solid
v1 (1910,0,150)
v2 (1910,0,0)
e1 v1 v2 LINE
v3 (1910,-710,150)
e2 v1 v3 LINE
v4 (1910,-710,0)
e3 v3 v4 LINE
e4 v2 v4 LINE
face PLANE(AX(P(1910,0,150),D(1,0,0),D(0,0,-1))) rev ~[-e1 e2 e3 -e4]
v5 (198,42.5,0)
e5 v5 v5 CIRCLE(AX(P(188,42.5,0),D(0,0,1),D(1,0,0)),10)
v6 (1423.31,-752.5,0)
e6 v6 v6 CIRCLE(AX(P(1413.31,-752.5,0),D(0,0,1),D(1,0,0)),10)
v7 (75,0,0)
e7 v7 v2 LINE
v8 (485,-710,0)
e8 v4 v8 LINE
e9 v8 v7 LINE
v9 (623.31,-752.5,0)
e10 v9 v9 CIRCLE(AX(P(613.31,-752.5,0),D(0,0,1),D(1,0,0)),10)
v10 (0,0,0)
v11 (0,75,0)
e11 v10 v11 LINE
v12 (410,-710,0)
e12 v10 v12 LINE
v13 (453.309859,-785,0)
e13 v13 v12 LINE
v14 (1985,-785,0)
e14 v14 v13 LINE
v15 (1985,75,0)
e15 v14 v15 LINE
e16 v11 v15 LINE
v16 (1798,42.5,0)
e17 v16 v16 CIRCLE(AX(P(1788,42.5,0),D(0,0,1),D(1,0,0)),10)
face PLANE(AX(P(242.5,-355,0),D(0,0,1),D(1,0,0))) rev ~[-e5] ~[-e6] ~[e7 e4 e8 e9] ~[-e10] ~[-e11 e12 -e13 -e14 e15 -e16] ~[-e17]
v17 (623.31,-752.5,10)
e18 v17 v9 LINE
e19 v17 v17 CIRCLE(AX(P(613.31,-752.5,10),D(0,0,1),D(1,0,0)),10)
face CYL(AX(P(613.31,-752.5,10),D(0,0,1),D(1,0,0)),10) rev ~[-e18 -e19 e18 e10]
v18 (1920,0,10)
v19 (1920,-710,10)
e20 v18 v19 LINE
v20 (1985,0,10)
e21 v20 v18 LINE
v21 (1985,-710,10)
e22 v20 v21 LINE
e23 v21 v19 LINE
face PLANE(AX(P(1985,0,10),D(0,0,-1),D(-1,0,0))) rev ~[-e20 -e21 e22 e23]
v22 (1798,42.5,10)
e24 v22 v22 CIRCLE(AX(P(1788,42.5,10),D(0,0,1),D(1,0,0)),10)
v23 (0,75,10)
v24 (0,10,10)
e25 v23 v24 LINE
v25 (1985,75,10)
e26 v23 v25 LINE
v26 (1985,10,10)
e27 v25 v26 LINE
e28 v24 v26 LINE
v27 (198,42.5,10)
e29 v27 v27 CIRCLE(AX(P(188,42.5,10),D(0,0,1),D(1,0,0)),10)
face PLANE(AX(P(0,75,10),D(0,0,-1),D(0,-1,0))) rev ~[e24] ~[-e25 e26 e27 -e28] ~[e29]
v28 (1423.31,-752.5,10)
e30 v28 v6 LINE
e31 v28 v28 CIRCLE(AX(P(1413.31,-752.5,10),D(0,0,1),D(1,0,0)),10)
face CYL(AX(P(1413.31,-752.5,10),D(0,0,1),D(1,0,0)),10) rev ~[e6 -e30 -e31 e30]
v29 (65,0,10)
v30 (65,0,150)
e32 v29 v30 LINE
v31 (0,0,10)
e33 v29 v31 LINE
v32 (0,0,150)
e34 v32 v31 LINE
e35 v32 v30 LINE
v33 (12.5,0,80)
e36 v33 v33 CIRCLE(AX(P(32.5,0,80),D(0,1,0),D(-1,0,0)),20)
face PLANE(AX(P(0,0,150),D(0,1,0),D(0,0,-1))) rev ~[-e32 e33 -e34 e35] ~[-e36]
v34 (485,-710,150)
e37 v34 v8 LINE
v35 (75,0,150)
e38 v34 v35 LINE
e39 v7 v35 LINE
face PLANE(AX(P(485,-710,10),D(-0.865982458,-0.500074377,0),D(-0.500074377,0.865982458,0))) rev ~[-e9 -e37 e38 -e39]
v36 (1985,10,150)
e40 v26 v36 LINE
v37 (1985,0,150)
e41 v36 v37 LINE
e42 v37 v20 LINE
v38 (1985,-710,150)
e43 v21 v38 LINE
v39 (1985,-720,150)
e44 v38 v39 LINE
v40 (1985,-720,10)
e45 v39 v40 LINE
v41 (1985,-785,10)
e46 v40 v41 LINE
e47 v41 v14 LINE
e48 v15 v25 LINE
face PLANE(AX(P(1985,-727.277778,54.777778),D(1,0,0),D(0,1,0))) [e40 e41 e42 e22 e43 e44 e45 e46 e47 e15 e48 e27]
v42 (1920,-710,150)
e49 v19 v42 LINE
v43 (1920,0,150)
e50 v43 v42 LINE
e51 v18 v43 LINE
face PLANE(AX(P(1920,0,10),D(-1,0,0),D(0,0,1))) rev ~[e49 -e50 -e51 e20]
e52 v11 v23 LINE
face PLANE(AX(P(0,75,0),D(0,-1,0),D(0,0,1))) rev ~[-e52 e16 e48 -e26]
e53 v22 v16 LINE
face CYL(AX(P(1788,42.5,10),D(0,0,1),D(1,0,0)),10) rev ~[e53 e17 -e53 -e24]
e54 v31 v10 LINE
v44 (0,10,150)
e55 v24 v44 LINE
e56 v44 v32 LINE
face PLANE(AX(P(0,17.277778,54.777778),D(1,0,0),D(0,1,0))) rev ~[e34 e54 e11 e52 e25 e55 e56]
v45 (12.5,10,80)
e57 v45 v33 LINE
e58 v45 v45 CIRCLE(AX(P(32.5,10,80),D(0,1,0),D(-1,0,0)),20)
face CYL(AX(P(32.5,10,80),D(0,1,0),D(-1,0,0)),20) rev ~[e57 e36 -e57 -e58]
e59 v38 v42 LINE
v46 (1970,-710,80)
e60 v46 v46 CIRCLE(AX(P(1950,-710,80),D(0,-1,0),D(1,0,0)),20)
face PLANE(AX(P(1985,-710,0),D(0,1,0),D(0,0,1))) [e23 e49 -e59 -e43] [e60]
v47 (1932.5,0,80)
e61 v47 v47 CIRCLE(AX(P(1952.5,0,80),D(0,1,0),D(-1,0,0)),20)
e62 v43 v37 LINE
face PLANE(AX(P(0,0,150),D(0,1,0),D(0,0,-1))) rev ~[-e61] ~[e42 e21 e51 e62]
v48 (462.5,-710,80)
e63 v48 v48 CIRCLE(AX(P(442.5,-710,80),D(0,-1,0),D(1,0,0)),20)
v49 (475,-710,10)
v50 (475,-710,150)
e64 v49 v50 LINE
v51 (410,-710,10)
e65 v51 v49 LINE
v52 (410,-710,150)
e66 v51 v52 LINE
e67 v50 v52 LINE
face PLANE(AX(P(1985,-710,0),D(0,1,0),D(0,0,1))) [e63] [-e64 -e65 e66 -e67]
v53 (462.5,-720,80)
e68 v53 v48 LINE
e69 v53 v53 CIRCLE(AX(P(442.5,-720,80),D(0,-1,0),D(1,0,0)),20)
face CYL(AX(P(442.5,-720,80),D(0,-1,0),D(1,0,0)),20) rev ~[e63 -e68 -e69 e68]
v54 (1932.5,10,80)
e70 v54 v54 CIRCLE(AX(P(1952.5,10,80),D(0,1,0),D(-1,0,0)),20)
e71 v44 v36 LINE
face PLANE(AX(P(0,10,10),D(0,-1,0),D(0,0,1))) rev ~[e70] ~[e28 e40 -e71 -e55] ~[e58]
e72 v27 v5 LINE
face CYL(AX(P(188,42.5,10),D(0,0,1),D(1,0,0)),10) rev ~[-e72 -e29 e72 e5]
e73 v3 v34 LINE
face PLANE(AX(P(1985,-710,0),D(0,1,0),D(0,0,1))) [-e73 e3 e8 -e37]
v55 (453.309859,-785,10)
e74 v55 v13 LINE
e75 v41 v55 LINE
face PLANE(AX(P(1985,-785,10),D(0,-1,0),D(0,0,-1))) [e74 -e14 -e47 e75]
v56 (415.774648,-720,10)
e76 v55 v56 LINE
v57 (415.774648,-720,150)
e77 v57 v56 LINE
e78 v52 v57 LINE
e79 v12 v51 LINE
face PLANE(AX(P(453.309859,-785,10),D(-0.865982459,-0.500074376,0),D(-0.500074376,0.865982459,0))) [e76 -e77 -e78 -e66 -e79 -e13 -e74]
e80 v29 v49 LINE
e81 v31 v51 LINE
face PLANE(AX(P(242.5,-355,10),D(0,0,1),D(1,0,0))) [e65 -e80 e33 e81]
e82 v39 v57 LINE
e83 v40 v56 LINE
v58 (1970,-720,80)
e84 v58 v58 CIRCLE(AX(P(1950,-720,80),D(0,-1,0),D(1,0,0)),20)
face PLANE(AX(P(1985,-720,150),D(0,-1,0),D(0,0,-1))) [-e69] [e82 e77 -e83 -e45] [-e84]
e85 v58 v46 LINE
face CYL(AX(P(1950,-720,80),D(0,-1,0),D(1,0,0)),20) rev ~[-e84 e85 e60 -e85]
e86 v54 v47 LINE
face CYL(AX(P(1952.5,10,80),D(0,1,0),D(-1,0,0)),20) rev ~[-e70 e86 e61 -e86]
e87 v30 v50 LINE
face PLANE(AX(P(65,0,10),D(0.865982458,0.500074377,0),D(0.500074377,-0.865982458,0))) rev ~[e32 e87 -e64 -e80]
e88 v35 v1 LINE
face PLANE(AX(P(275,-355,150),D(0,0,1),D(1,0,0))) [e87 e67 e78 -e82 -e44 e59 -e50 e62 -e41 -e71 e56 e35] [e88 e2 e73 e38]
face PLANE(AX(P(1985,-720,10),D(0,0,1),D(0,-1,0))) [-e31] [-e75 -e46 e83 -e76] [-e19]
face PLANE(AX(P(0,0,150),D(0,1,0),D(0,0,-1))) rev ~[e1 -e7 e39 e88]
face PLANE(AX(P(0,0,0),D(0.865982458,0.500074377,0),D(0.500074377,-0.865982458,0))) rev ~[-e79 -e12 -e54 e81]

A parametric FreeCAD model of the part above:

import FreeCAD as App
import Part
import Sketcher

doc = App.newDocument("Part")
body = doc.addObject("PartDesign::Body", "Body")

# Sketch on YZ plane
sketch1 = doc.addObject("Sketcher::SketchObject", "Sketch")
body.addObject(sketch1)
sketch1.AttachmentSupport = (doc.YZ_Plane, [""])
sketch1.MapMode = "FlatFace"
sketch1.addGeometry(Part.LineSegment(App.Vector(0, 0, 0), App.Vector(75, 0, 0)), False)
sketch1.addGeometry(Part.LineSegment(App.Vector(75, 0, 0), App.Vector(75, 10, 0)), False)
sketch1.addGeometry(Part.LineSegment(App.Vector(75, 10, 0), App.Vector(10, 10, 0)), False)
sketch1.addGeometry(Part.LineSegment(App.Vector(10, 10, 0), App.Vector(10, 150, 0)), False)
sketch1.addGeometry(Part.LineSegment(App.Vector(10, 150, 0), App.Vector(0, 150, 0)), False)
sketch1.addGeometry(Part.LineSegment(App.Vector(0, 150, 0), App.Vector(0, 0, 0)), False)
sketch1.addConstraint(Sketcher.Constraint("Coincident", 0, 2, 1, 1))
sketch1.addConstraint(Sketcher.Constraint("Coincident", 1, 2, 2, 1))
sketch1.addConstraint(Sketcher.Constraint("Coincident", 2, 2, 3, 1))
sketch1.addConstraint(Sketcher.Constraint("Coincident", 3, 2, 4, 1))
sketch1.addConstraint(Sketcher.Constraint("Coincident", 4, 2, 5, 1))
sketch1.addConstraint(Sketcher.Constraint("Coincident", 5, 2, 0, 1))
sketch1.addConstraint(Sketcher.Constraint("Horizontal", 0))
sketch1.addConstraint(Sketcher.Constraint("Vertical", 1))
sketch1.addConstraint(Sketcher.Constraint("Horizontal", 2))
sketch1.addConstraint(Sketcher.Constraint("Vertical", 3))
sketch1.addConstraint(Sketcher.Constraint("Horizontal", 4))
sketch1.addConstraint(Sketcher.Constraint("Vertical", 5))
sketch1.addConstraint(Sketcher.Constraint("Coincident", 5, 2, -1, 1))
sketch1.addConstraint(Sketcher.Constraint("Equal", 4, 1))
sketch1.addConstraint(Sketcher.Constraint("DistanceX", 0, 1, 0, 2, 75.0))
sketch1.addConstraint(Sketcher.Constraint("DistanceX", 2, 2, 2, 1, 65.0))
sketch1.addConstraint(Sketcher.Constraint("DistanceY", 3, 1, 3, 2, 140.0))
pad1 = doc.addObject("PartDesign::Pad", "Pad")
body.addObject(pad1)
pad1.Profile = sketch1
pad1.Length = 1985

# Sketch on XZ plane
sketch2 = doc.addObject("Sketcher::SketchObject", "Sketch001")
body.addObject(sketch2)
sketch2.AttachmentSupport = (doc.XZ_Plane, [""])
sketch2.MapMode = "FlatFace"
sketch2.addGeometry(Part.LineSegment(App.Vector(1910, 0, 0), App.Vector(1985, 0, 0)), False)
sketch2.addGeometry(Part.LineSegment(App.Vector(1985, 0, 0), App.Vector(1985, 10, 0)), False)
sketch2.addGeometry(Part.LineSegment(App.Vector(1985, 10, 0), App.Vector(1920, 10, 0)), False)
sketch2.addGeometry(Part.LineSegment(App.Vector(1920, 10, 0), App.Vector(1920, 150, 0)), False)
sketch2.addGeometry(Part.LineSegment(App.Vector(1920, 150, 0), App.Vector(1910, 150, 0)), False)
sketch2.addGeometry(Part.LineSegment(App.Vector(1910, 150, 0), App.Vector(1910, 0, 0)), False)
sketch2.addConstraint(Sketcher.Constraint("Coincident", 0, 2, 1, 1))
sketch2.addConstraint(Sketcher.Constraint("Coincident", 1, 2, 2, 1))
sketch2.addConstraint(Sketcher.Constraint("Coincident", 2, 2, 3, 1))
sketch2.addConstraint(Sketcher.Constraint("Coincident", 3, 2, 4, 1))
sketch2.addConstraint(Sketcher.Constraint("Coincident", 4, 2, 5, 1))
sketch2.addConstraint(Sketcher.Constraint("Coincident", 5, 2, 0, 1))
sketch2.addConstraint(Sketcher.Constraint("Horizontal", 0))
sketch2.addConstraint(Sketcher.Constraint("Vertical", 1))
sketch2.addConstraint(Sketcher.Constraint("Horizontal", 2))
sketch2.addConstraint(Sketcher.Constraint("Vertical", 3))
sketch2.addConstraint(Sketcher.Constraint("Horizontal", 4))
sketch2.addConstraint(Sketcher.Constraint("Vertical", 5))
sketch2.addConstraint(Sketcher.Constraint("PointOnObject", 0, 2, -1))
sketch2.addConstraint(Sketcher.Constraint("Equal", 4, 1))
sketch2.addConstraint(Sketcher.Constraint("DistanceX", 0, 1, 0, 2, 75.0))
sketch2.addConstraint(Sketcher.Constraint("DistanceX", 2, 2, 2, 1, 65.0))
sketch2.addConstraint(Sketcher.Constraint("DistanceY", 3, 1, 3, 2, 140.0))
sketch2.addConstraint(Sketcher.Constraint("DistanceX", -1, 1, 0, 2, 1985.0))
pad2 = doc.addObject("PartDesign::Pad", "Pad001")
body.addObject(pad2)
pad2.Profile = sketch2
pad2.Length = 710
body2 = doc.addObject("PartDesign::Body", "Body001")

# Sketch on YZ plane
sketch3 = doc.addObject("Sketcher::SketchObject", "Sketch002")
body2.addObject(sketch3)
sketch3.AttachmentSupport = (doc.getObject("YZ_Plane001"), [""])
sketch3.MapMode = "FlatFace"
sketch3.AttachmentOffset = App.Placement(App.Vector(0, 0, 1985), App.Rotation())
sketch3.addGeometry(Part.LineSegment(App.Vector(-720, 150, 0), App.Vector(-720, 10, 0)), False)
sketch3.addGeometry(Part.LineSegment(App.Vector(-720, 10, 0), App.Vector(-785, 10, 0)), False)
sketch3.addGeometry(Part.LineSegment(App.Vector(-785, 10, 0), App.Vector(-785, 0, 0)), False)
sketch3.addGeometry(Part.LineSegment(App.Vector(-785, 0, 0), App.Vector(-710, 0, 0)), False)
sketch3.addGeometry(Part.LineSegment(App.Vector(-710, 0, 0), App.Vector(-710, 150, 0)), False)
sketch3.addGeometry(Part.LineSegment(App.Vector(-710, 150, 0), App.Vector(-720, 150, 0)), False)
sketch3.addConstraint(Sketcher.Constraint("Coincident", 0, 2, 1, 1))
sketch3.addConstraint(Sketcher.Constraint("Coincident", 1, 2, 2, 1))
sketch3.addConstraint(Sketcher.Constraint("Coincident", 2, 2, 3, 1))
sketch3.addConstraint(Sketcher.Constraint("Coincident", 3, 2, 4, 1))
sketch3.addConstraint(Sketcher.Constraint("Coincident", 4, 2, 5, 1))
sketch3.addConstraint(Sketcher.Constraint("Coincident", 5, 2, 0, 1))
sketch3.addConstraint(Sketcher.Constraint("Vertical", 0))
sketch3.addConstraint(Sketcher.Constraint("Horizontal", 1))
sketch3.addConstraint(Sketcher.Constraint("Vertical", 2))
sketch3.addConstraint(Sketcher.Constraint("Horizontal", 3))
sketch3.addConstraint(Sketcher.Constraint("Vertical", 4))
sketch3.addConstraint(Sketcher.Constraint("Horizontal", 5))
sketch3.addConstraint(Sketcher.Constraint("PointOnObject", 2, 2, -1))
sketch3.addConstraint(Sketcher.Constraint("Equal", 5, 2))
sketch3.addConstraint(Sketcher.Constraint("DistanceX", 1, 2, 1, 1, 65.0))
sketch3.addConstraint(Sketcher.Constraint("DistanceX", 3, 1, 3, 2, 75.0))
sketch3.addConstraint(Sketcher.Constraint("DistanceY", 0, 2, 0, 1, 140.0))
sketch3.addConstraint(Sketcher.Constraint("DistanceX", 0, 2, -1, 1, 720.0))
pad3 = doc.addObject("PartDesign::Pad", "Pad002")
body2.addObject(pad3)
pad3.Profile = sketch3
pad3.Length = 1575
pad3.Reversed = True
body3 = doc.addObject("PartDesign::Body", "Body002")

# Sketch on XY plane
sketch4 = doc.addObject("Sketcher::SketchObject", "Sketch003")
body3.addObject(sketch4)
sketch4.AttachmentSupport = (doc.getObject("XY_Plane002"), [""])
sketch4.MapMode = "FlatFace"
sketch4.addGeometry(Part.LineSegment(App.Vector(485, -710, 0), App.Vector(75, 0, 0)), False)
sketch4.addGeometry(Part.LineSegment(App.Vector(75, 0, 0), App.Vector(0, 0, 0)), False)
sketch4.addGeometry(Part.LineSegment(App.Vector(0, 0, 0), App.Vector(410, -710, 0)), False)
sketch4.addGeometry(Part.LineSegment(App.Vector(410, -710, 0), App.Vector(485, -710, 0)), False)
sketch4.addConstraint(Sketcher.Constraint("Coincident", 0, 2, 1, 1))
sketch4.addConstraint(Sketcher.Constraint("Coincident", 1, 2, 2, 1))
sketch4.addConstraint(Sketcher.Constraint("Coincident", 2, 2, 3, 1))
sketch4.addConstraint(Sketcher.Constraint("Coincident", 3, 2, 0, 1))
sketch4.addConstraint(Sketcher.Constraint("Horizontal", 1))
sketch4.addConstraint(Sketcher.Constraint("Horizontal", 3))
sketch4.addConstraint(Sketcher.Constraint("Coincident", 1, 2, -1, 1))
sketch4.addConstraint(Sketcher.Constraint("Parallel", 0, 2))
sketch4.addConstraint(Sketcher.Constraint("DistanceX", 1, 2, 1, 1, 75.0))
sketch4.addConstraint(Sketcher.Constraint("DistanceX", -1, 1, 2, 2, 410.0))
sketch4.addConstraint(Sketcher.Constraint("DistanceY", 2, 2, -1, 1, 710.0))
pad4 = doc.addObject("PartDesign::Pad", "Pad003")
body3.addObject(pad4)
pad4.Profile = sketch4
pad4.Length = 10
doc.recompute()

boolean = doc.addObject("PartDesign::Boolean", "Boolean")
body.addObject(boolean)
boolean.Type = "Fuse"
boolean.addObjects([body2])
doc.recompute()

boolean2 = doc.addObject("PartDesign::Boolean", "Boolean001")
body.addObject(boolean2)
boolean2.Type = "Fuse"
boolean2.addObjects([body3])

# Sketch on XY plane
sketch5 = doc.addObject("Sketcher::SketchObject", "Sketch004")
body.addObject(sketch5)
sketch5.AttachmentSupport = (doc.XY_Plane, [""])
sketch5.MapMode = "FlatFace"
sketch5.AttachmentOffset = App.Placement(App.Vector(0, 0, 10), App.Rotation())
sketch5.addGeometry(Part.LineSegment(App.Vector(485, -710, 0), App.Vector(75, 0, 0)), False)
sketch5.addGeometry(Part.LineSegment(App.Vector(75, 0, 0), App.Vector(65, 0, 0)), False)
sketch5.addGeometry(Part.LineSegment(App.Vector(65, 0, 0), App.Vector(475, -710, 0)), False)
sketch5.addGeometry(Part.LineSegment(App.Vector(475, -710, 0), App.Vector(485, -710, 0)), False)
sketch5.addConstraint(Sketcher.Constraint("Coincident", 0, 2, 1, 1))
sketch5.addConstraint(Sketcher.Constraint("Coincident", 1, 2, 2, 1))
sketch5.addConstraint(Sketcher.Constraint("Coincident", 2, 2, 3, 1))
sketch5.addConstraint(Sketcher.Constraint("Coincident", 3, 2, 0, 1))
sketch5.addConstraint(Sketcher.Constraint("Horizontal", 1))
sketch5.addConstraint(Sketcher.Constraint("Horizontal", 3))
sketch5.addConstraint(Sketcher.Constraint("PointOnObject", 0, 2, -1))
sketch5.addConstraint(Sketcher.Constraint("Parallel", 0, 2))
sketch5.addConstraint(Sketcher.Constraint("DistanceX", 1, 2, 1, 1, 10.0))
sketch5.addConstraint(Sketcher.Constraint("DistanceX", -1, 1, 0, 2, 75.0))
sketch5.addConstraint(Sketcher.Constraint("DistanceX", -1, 1, 2, 2, 475.0))
sketch5.addConstraint(Sketcher.Constraint("DistanceY", 2, 2, -1, 1, 710.0))
pad5 = doc.addObject("PartDesign::Pad", "Pad004")
body.addObject(pad5)
pad5.Profile = sketch5
pad5.Length = 140

# Sketch on XY plane
sketch6 = doc.addObject("Sketcher::SketchObject", "Sketch005")
body.addObject(sketch6)
sketch6.AttachmentSupport = (doc.XY_Plane, [""])
sketch6.MapMode = "FlatFace"
sketch6.AttachmentOffset = App.Placement(App.Vector(0, 0, 10), App.Rotation())
sketch6.addGeometry(Part.Circle(App.Vector(613, -752, 0), App.Vector(0, 0, 1), 10), False)
sketch6.addGeometry(Part.Circle(App.Vector(1413, -752, 0), App.Vector(0, 0, 1), 10), False)
sketch6.addGeometry(Part.Circle(App.Vector(1788, 42, 0), App.Vector(0, 0, 1), 10), False)
sketch6.addGeometry(Part.Circle(App.Vector(188, 42, 0), App.Vector(0, 0, 1), 10), False)
sketch6.addConstraint(Sketcher.Constraint("Equal", 0, 1))
sketch6.addConstraint(Sketcher.Constraint("Equal", 1, 2))
sketch6.addConstraint(Sketcher.Constraint("Equal", 2, 3))
sketch6.addConstraint(Sketcher.Constraint("Horizontal", 0, 3, 1, 3))
sketch6.addConstraint(Sketcher.Constraint("Horizontal", 2, 3, 3, 3))
sketch6.addConstraint(Sketcher.Constraint("Diameter", 0, 20.0))
sketch6.addConstraint(Sketcher.Constraint("DistanceX", -1, 1, 2, 3, 1788.0))
sketch6.addConstraint(Sketcher.Constraint("DistanceX", -1, 1, 3, 3, 188.0))
sketch6.addConstraint(Sketcher.Constraint("DistanceX", 0, 3, 1, 3, 800.0))
sketch6.addConstraint(Sketcher.Constraint("DistanceY", 1, 3, 2, 3, 795.0))
sketch6.addConstraint(Sketcher.Constraint("DistanceY", 0, 3, -1, 1, 752.5))
sketch6.addConstraint(Sketcher.Constraint("DistanceX", -1, 1, 0, 3, 613.31))
pocket1 = doc.addObject("PartDesign::Pocket", "Pocket")
body.addObject(pocket1)
pocket1.Profile = sketch6
pocket1.Length = 25

# Sketch on XZ plane
sketch7 = doc.addObject("Sketcher::SketchObject", "Sketch006")
body.addObject(sketch7)
sketch7.AttachmentSupport = (doc.XZ_Plane, [""])
sketch7.MapMode = "FlatFace"
sketch7.AttachmentOffset = App.Placement(App.Vector(0, 0, 720), App.Rotation())
sketch7.addGeometry(Part.Circle(App.Vector(442, 80, 0), App.Vector(0, 0, 1), 20), False)
sketch7.addGeometry(Part.Circle(App.Vector(1950, 80, 0), App.Vector(0, 0, 1), 20), False)
sketch7.addConstraint(Sketcher.Constraint("Equal", 0, 1))
sketch7.addConstraint(Sketcher.Constraint("Horizontal", 0, 3, 1, 3))
sketch7.addConstraint(Sketcher.Constraint("Diameter", 0, 40.0))
sketch7.addConstraint(Sketcher.Constraint("DistanceY", -1, 1, 0, 3, 80.0))
sketch7.addConstraint(Sketcher.Constraint("DistanceX", -1, 1, 1, 3, 1950.0))
sketch7.addConstraint(Sketcher.Constraint("DistanceX", -1, 1, 0, 3, 442.5))
pocket2 = doc.addObject("PartDesign::Pocket", "Pocket001")
body.addObject(pocket2)
pocket2.Profile = sketch7
pocket2.Length = 15

# Sketch on XZ plane
sketch8 = doc.addObject("Sketcher::SketchObject", "Sketch007")
body.addObject(sketch8)
sketch8.AttachmentSupport = (doc.XZ_Plane, [""])
sketch8.MapMode = "FlatFace"
sketch8.AttachmentOffset = App.Placement(App.Vector(0, 0, -10), App.Rotation())
sketch8.addGeometry(Part.Circle(App.Vector(1952, 80, 0), App.Vector(0, 0, 1), 20), False)
sketch8.addGeometry(Part.Circle(App.Vector(32, 80, 0), App.Vector(0, 0, 1), 20), False)
sketch8.addConstraint(Sketcher.Constraint("Equal", 0, 1))
sketch8.addConstraint(Sketcher.Constraint("Horizontal", 0, 3, 1, 3))
sketch8.addConstraint(Sketcher.Constraint("Diameter", 0, 40.0))
sketch8.addConstraint(Sketcher.Constraint("DistanceY", -1, 1, 0, 3, 80.0))
sketch8.addConstraint(Sketcher.Constraint("DistanceX", 1, 3, 0, 3, 1920.0))
sketch8.addConstraint(Sketcher.Constraint("DistanceX", -1, 1, 0, 3, 1952.5))
pocket3 = doc.addObject("PartDesign::Pocket", "Pocket002")
body.addObject(pocket3)
pocket3.Profile = sketch8
pocket3.Length = 25
pocket3.Reversed = True

# Sketch on XY plane
sketch9 = doc.addObject("Sketcher::SketchObject", "Sketch008")
body.addObject(sketch9)
sketch9.AttachmentSupport = (doc.XY_Plane, [""])
sketch9.MapMode = "FlatFace"
sketch9.AttachmentOffset = App.Placement(App.Vector(0, 0, 10), App.Rotation())
sketch9.addGeometry(Part.LineSegment(App.Vector(453, -785, 0), App.Vector(410, -710, 0)), False)
sketch9.addGeometry(Part.LineSegment(App.Vector(410, -710, 0), App.Vector(410, -785, 0)), False)
sketch9.addGeometry(Part.LineSegment(App.Vector(410, -785, 0), App.Vector(453, -785, 0)), False)
sketch9.addConstraint(Sketcher.Constraint("Coincident", 0, 2, 1, 1))
sketch9.addConstraint(Sketcher.Constraint("Coincident", 1, 2, 2, 1))
sketch9.addConstraint(Sketcher.Constraint("Coincident", 2, 2, 0, 1))
sketch9.addConstraint(Sketcher.Constraint("Vertical", 1))
sketch9.addConstraint(Sketcher.Constraint("Horizontal", 2))
sketch9.addConstraint(Sketcher.Constraint("DistanceY", 1, 2, 1, 1, 75.0))
sketch9.addConstraint(Sketcher.Constraint("DistanceX", -1, 1, 0, 2, 410.0))
sketch9.addConstraint(Sketcher.Constraint("DistanceY", 0, 2, -1, 1, 710.0))
sketch9.addConstraint(Sketcher.Constraint("DistanceX", 2, 1, 2, 2, 43.309859))
pocket4 = doc.addObject("PartDesign::Pocket", "Pocket003")
body.addObject(pocket4)
pocket4.Profile = sketch9
pocket4.Type = "ThroughAll"
pocket4.Midplane = True

doc.recompute()
